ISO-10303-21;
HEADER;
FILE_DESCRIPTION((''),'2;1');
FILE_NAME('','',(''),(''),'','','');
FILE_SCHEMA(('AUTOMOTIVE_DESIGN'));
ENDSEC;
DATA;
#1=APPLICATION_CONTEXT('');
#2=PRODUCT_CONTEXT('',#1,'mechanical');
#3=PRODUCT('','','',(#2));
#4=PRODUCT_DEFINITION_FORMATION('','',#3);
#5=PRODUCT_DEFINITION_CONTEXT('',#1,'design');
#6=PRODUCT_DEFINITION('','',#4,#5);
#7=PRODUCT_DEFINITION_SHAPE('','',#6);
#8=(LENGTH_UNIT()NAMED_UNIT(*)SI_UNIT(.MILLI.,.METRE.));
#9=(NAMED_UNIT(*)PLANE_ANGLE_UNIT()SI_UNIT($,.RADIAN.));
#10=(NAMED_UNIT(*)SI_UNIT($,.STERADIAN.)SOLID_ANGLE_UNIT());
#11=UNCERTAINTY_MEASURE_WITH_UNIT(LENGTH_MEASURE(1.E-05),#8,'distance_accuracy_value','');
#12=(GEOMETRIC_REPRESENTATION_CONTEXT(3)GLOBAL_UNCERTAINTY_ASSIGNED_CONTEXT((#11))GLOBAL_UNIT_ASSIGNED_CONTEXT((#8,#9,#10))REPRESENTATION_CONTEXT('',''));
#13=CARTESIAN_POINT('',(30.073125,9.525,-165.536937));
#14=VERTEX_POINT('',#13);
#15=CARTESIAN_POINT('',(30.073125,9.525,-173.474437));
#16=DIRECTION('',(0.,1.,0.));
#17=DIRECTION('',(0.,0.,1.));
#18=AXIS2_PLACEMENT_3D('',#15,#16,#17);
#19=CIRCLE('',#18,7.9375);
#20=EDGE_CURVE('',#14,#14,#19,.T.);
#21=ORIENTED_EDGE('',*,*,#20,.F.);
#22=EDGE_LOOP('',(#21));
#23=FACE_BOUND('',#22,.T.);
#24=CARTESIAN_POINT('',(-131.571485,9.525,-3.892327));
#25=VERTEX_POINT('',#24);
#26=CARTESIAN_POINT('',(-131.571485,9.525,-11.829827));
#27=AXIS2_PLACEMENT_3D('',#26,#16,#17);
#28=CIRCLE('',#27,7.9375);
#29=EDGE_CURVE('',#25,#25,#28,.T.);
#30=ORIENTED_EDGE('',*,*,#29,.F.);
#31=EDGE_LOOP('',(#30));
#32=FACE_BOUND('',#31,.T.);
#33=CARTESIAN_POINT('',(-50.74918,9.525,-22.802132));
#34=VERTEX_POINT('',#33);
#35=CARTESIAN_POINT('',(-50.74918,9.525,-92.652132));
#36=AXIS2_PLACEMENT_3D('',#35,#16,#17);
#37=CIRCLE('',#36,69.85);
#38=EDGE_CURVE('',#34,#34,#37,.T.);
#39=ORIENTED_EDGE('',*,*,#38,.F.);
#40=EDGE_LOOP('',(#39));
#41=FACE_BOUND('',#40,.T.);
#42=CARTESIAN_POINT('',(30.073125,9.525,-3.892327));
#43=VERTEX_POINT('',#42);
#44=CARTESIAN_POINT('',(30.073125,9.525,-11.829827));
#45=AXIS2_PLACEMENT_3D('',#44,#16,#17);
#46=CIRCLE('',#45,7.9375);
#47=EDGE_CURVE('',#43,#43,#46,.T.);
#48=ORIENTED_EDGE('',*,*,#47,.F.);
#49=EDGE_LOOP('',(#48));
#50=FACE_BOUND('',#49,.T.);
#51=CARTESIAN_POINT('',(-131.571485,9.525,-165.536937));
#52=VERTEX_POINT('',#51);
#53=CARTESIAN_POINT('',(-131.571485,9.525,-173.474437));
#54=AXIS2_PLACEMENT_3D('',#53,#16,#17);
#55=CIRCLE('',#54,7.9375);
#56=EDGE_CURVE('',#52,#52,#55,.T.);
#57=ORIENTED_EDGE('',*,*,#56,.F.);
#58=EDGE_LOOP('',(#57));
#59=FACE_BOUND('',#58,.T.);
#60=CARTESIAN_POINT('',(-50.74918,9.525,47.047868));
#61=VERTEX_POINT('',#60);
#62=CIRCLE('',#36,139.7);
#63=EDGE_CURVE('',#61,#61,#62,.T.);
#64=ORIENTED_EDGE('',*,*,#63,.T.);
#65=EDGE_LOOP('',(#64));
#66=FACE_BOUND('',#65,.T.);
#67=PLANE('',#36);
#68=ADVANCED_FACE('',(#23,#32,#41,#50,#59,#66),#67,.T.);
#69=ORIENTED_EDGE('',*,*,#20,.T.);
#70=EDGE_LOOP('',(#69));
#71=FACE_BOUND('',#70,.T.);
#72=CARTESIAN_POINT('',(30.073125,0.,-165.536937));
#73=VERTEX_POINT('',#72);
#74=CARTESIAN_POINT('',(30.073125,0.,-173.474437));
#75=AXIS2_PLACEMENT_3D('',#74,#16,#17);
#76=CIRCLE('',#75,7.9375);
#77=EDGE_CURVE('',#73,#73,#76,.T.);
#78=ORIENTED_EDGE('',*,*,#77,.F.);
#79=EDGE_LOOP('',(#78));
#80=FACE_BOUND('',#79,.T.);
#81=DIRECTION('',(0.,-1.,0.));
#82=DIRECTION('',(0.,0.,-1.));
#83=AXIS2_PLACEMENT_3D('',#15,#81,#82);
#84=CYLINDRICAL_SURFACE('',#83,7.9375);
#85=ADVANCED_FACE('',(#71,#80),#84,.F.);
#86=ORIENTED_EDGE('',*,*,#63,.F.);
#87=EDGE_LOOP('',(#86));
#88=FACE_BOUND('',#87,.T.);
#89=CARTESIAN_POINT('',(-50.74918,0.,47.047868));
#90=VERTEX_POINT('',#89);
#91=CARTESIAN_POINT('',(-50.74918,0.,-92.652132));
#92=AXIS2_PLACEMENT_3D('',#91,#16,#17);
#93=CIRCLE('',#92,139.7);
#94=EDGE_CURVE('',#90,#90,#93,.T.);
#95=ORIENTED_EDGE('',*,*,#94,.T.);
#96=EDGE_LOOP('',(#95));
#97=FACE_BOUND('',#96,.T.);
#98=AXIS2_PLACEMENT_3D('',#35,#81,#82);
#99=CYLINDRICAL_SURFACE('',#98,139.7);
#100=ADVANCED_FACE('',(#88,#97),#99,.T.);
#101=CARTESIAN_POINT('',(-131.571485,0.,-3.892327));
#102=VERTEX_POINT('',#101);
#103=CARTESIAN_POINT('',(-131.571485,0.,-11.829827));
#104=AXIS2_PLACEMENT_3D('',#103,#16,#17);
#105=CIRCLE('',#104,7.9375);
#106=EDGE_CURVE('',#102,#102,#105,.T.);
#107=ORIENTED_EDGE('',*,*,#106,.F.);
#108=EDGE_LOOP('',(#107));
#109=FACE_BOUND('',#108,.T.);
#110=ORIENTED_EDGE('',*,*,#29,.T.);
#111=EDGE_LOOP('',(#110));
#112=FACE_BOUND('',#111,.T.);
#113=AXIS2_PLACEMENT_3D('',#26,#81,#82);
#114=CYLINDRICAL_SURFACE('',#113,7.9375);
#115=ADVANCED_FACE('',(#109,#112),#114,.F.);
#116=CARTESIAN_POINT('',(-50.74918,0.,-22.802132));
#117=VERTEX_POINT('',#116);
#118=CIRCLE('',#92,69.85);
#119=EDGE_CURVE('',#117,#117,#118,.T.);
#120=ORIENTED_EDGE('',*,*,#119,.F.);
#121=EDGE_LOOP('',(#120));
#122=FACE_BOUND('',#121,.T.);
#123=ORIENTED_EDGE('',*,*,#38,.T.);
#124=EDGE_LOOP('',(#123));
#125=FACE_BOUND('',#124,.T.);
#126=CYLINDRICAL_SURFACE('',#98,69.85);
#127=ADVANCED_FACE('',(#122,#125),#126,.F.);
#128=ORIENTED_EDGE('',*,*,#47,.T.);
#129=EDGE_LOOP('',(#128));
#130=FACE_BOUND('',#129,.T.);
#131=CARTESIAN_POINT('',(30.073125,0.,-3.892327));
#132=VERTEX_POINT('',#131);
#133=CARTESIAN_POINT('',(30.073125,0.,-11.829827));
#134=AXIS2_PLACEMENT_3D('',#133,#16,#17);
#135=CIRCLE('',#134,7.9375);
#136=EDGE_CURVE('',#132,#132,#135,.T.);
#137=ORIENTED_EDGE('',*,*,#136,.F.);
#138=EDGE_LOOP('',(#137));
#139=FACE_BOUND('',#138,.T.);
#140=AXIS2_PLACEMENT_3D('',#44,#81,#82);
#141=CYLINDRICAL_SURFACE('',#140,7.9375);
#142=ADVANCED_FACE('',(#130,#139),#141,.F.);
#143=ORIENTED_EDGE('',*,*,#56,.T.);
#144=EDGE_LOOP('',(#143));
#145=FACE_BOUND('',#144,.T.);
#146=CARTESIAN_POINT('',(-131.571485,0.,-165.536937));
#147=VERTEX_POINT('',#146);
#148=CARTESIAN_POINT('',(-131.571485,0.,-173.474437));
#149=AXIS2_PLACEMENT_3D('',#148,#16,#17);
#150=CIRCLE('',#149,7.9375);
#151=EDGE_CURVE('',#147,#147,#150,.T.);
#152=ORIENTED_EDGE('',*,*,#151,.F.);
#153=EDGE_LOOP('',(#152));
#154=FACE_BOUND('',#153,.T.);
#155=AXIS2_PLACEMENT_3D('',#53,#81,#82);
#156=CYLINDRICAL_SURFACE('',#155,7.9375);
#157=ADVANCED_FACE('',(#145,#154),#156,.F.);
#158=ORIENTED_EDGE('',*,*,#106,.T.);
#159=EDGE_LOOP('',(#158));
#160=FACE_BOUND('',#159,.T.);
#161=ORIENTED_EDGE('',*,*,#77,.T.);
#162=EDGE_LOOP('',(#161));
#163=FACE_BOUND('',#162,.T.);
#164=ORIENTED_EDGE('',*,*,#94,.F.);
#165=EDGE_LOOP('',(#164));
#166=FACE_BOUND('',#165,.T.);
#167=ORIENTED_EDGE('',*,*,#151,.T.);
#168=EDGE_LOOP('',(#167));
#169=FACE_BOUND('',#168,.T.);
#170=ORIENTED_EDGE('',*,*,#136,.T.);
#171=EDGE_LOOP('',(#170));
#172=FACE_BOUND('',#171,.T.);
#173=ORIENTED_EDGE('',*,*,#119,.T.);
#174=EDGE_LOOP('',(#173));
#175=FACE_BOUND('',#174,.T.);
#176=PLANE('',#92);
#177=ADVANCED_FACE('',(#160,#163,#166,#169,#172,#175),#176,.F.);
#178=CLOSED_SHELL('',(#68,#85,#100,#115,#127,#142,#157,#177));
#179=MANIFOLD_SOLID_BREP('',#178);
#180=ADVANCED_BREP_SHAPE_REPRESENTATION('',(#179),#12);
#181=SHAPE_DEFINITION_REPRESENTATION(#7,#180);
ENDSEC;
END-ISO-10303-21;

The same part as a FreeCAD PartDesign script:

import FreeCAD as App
import Part
import Sketcher

V = App.Vector
Q = App.Units.Quantity

doc = App.newDocument("Part")
body = doc.addObject("PartDesign::Body", "Body")

sketch1 = body.newObject("Sketcher::SketchObject", "Sketch")
sketch1.AttachmentSupport = (doc.getObject("XZ_Plane"), [""])
sketch1.MapMode = "FlatFace"
sketch1.addGeometry([
    Part.Circle(V(-51, -93, 0), V(0, 0, 1), 140),
    Part.Circle(V(-132, -12, 0), V(0, 0, 1), 8),
    Part.Circle(V(30, -12, 0), V(0, 0, 1), 8),
    Part.Circle(V(-51, -93, 0), V(0, 0, 1), 70),
    Part.Circle(V(-132, -173, 0), V(0, 0, 1), 8),
    Part.Circle(V(30, -173, 0), V(0, 0, 1), 8),
], False)
sketch1.addConstraint([
    Sketcher.Constraint("Coincident", 3, 3, 0, 3),
    Sketcher.Constraint("Equal", 1, 2),
    Sketcher.Constraint("Equal", 2, 4),
    Sketcher.Constraint("Equal", 4, 5),
    Sketcher.Constraint("Horizontal", 1, 3, 2, 3),
    Sketcher.Constraint("Horizontal", 4, 3, 5, 3),
    Sketcher.Constraint("Vertical", 1, 3, 4, 3),
    Sketcher.Constraint("Vertical", 2, 3, 5, 3),
    Sketcher.Constraint("Diameter", 0, Q("11 in")),
    Sketcher.Constraint("Diameter", 3, Q("5.5 in")),
    Sketcher.Constraint("Diameter", 1, Q("0.625 in")),
    Sketcher.Constraint("DistanceX", 0, 3, -1, 1, 50.74918),
    Sketcher.Constraint("DistanceY", 0, 3, -1, 1, 92.652132),
    Sketcher.Constraint("DistanceX", 1, 3, 2, 3, 161.64461),
    Sketcher.Constraint("DistanceY", 4, 3, 1, 3, 161.64461),
    Sketcher.Constraint("DistanceX", 1, 3, -1, 1, 131.571485),
    Sketcher.Constraint("DistanceY", 1, 3, -1, 1, 11.829827),
])
pad1 = body.newObject("PartDesign::Pad", "Pad")
pad1.Profile = sketch1
pad1.Length = Q("0.375 in")
pad1.Reversed = True

doc.recompute()
